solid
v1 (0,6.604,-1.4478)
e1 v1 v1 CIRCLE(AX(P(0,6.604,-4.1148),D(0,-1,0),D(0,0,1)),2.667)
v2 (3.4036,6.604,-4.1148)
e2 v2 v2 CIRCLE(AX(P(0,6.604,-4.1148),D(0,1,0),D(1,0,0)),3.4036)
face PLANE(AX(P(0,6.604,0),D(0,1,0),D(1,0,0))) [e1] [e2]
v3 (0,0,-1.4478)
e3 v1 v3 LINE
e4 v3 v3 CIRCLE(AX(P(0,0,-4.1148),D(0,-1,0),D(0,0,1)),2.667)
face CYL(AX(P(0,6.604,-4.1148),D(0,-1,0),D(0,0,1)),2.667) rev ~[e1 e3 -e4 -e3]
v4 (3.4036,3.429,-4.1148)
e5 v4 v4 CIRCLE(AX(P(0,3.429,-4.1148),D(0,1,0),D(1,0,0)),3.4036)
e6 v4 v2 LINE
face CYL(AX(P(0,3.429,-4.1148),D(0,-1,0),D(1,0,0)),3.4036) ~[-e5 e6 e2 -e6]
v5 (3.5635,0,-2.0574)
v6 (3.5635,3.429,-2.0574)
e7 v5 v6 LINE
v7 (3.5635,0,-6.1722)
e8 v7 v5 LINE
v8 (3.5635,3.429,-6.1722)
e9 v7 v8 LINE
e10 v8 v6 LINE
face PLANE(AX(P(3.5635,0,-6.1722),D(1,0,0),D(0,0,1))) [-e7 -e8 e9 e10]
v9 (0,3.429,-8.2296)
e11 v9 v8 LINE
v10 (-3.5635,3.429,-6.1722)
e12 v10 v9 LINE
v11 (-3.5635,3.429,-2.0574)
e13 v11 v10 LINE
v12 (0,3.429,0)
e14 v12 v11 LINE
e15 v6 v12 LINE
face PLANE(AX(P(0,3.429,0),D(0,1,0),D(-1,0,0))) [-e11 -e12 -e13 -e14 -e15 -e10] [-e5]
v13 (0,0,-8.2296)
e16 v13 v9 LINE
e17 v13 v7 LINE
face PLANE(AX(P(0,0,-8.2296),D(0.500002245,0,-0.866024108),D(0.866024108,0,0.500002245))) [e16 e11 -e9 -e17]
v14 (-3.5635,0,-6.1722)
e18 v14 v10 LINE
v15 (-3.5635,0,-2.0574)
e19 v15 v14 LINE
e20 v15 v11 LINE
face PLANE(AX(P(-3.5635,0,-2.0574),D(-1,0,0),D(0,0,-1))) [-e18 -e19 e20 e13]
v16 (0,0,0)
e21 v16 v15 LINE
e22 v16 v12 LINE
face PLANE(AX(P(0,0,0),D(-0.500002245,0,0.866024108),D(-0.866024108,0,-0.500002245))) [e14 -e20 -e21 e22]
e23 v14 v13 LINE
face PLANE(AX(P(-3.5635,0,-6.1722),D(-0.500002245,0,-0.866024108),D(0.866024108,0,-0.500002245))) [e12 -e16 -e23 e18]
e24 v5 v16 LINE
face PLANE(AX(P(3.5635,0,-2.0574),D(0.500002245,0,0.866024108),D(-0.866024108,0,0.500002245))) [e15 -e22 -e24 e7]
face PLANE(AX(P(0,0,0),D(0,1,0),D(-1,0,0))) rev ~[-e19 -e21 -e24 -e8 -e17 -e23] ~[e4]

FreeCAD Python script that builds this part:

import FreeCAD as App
import Part
import Sketcher
Q = App.Units.Quantity


def add_polygon(sketch, points):
    """Adds a closed chain of lines whose ends are joined by coincident constraints."""
    first, n = sketch.GeometryCount, len(points)
    for a, b in zip(points, points[1:] + points[:1]):
        sketch.addGeometry(Part.LineSegment(App.Vector(*a, 0), App.Vector(*b, 0)), False)
    for i in range(n):
        sketch.addConstraint(Sketcher.Constraint("Coincident", first + i, 2, first + (i + 1) % n, 1))

doc = App.newDocument("Part")
body = doc.addObject("PartDesign::Body", "Body")

# Sketch on XZ plane
sketch1 = body.newObject("Sketcher::SketchObject", "Sketch")
sketch1.AttachmentSupport = (doc.getObject("XZ_Plane"), [""])
sketch1.MapMode = "FlatFace"
add_polygon(sketch1, [(-3.6, -2.1), (0, 0), (3.6, -2.1), (3.6, -6.2), (0, -8.2), (-3.6, -6.2)])  # lines 0-5
sketch1.addConstraint([
    Sketcher.Constraint("Vertical", 2),
    Sketcher.Constraint("Vertical", 5),
    Sketcher.Constraint("Coincident", 0, 2, -1, 1),
    Sketcher.Constraint("Symmetric", 2, 2, 4, 2, -2),
    Sketcher.Constraint("PointOnObject", 3, 2, -2),
    Sketcher.Constraint("Parallel", 0, 3),
    Sketcher.Constraint("Parallel", 1, 4),
    Sketcher.Constraint("Angle", 0, Q("30.0001 deg")),
    Sketcher.Constraint("DistanceY", 2, 2, 2, 1, Q("0.162 in")),
    Sketcher.Constraint("Distance", 0, Q("0.162 in")),
])
pad1 = body.newObject("PartDesign::Pad", "Pad")
pad1.Profile = sketch1
pad1.Length = Q("0.135 in")
pad1.Reversed = True

# Sketch on XZ plane
sketch2 = body.newObject("Sketcher::SketchObject", "Sketch001")
sketch2.AttachmentSupport = (doc.getObject("XZ_Plane"), [""])
sketch2.MapMode = "FlatFace"
sketch2.AttachmentOffset = App.Placement(App.Vector(0, 0, -0.135 * 25.4), App.Rotation())
sketch2.addGeometry(Part.Circle(App.Vector(0, -4.1, 0), App.Vector(0, 0, 1), 3.4), False)
sketch2.addConstraint([
    Sketcher.Constraint("PointOnObject", 0, 3, -2),
    Sketcher.Constraint("Diameter", 0, Q("0.268 in")),
    Sketcher.Constraint("DistanceY", 0, 3, -1, 1, Q("0.162 in")),
])
pad2 = body.newObject("PartDesign::Pad", "Pad001")
pad2.Profile = sketch2
pad2.Length = Q("0.125 in")
pad2.Reversed = True

# Sketch on XZ plane
sketch3 = body.newObject("Sketcher::SketchObject", "Sketch002")
sketch3.AttachmentSupport = (doc.getObject("XZ_Plane"), [""])
sketch3.MapMode = "FlatFace"
sketch3.AttachmentOffset = App.Placement(App.Vector(0, 0, -0.26 * 25.4), App.Rotation())
sketch3.addGeometry(Part.Circle(App.Vector(0, -4.1, 0), App.Vector(0, 0, 1), 2.7), False)
sketch3.addConstraint([
    Sketcher.Constraint("PointOnObject", 0, 3, -2),
    Sketcher.Constraint("Diameter", 0, Q("0.21 in")),
    Sketcher.Constraint("DistanceY", 0, 3, -1, 1, Q("0.162 in")),
])
doc.recompute()
hole = body.newObject("PartDesign::Hole", "Hole")
hole.Profile = sketch3
hole.ThreadType = "None"
hole.Diameter = Q("0.21 in")
hole.DepthType = "ThroughAll"
hole.Reversed = True

doc.recompute()
